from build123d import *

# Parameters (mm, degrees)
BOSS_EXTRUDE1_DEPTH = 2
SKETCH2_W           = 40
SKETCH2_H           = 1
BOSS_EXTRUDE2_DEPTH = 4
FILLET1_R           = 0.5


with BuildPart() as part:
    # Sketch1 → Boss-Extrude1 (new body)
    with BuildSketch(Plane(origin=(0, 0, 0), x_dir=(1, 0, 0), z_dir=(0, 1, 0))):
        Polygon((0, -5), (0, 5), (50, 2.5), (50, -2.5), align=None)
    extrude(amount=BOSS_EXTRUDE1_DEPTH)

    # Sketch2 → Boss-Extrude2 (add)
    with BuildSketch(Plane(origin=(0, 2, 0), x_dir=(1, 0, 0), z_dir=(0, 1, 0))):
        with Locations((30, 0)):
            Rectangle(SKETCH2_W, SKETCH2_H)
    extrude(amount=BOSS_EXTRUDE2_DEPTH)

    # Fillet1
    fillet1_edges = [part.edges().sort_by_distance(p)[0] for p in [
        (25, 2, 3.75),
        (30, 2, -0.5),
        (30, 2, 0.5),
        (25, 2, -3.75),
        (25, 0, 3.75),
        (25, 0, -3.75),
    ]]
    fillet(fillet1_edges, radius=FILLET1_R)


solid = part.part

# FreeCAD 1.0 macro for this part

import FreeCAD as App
import Part
import Sketcher
from FreeCAD import Vector


def edges_at(feature, points):
    """Names of the edges that pass closest to the given points."""
    edges = feature.Shape.Edges
    near = lambda p: min(range(len(edges)), key=lambda i: edges[i].distToShape(Part.Vertex(*p))[0])
    return sorted({f"Edge{near(p) + 1}" for p in points})

doc = App.newDocument("Part")
body = doc.addObject("PartDesign::Body", "Body")

# Sketch on XZ plane
sketch1 = doc.addObject("Sketcher::SketchObject", "Sketch")
body.addObject(sketch1)
sketch1.AttachmentSupport = (doc.XZ_Plane, [""])
sketch1.MapMode = "FlatFace"
sketch1.addGeometry([
    Part.LineSegment(Vector(0, -5, 0), Vector(0, 5, 0)),
    Part.LineSegment(Vector(0, 5, 0), Vector(50, 2, 0)),
    Part.LineSegment(Vector(50, 2, 0), Vector(50, -2, 0)),
    Part.LineSegment(Vector(50, -2, 0), Vector(0, -5, 0)),
], False)
sketch1.addConstraint([
    Sketcher.Constraint("Coincident", 0, 2, 1, 1),
    Sketcher.Constraint("Coincident", 1, 2, 2, 1),
    Sketcher.Constraint("Coincident", 2, 2, 3, 1),
    Sketcher.Constraint("Coincident", 3, 2, 0, 1),
    Sketcher.Constraint("Vertical", 0),
    Sketcher.Constraint("Vertical", 2),
    Sketcher.Constraint("Symmetric", 0, 2, 3, 2, -1, 1),
    Sketcher.Constraint("Equal", 1, 3),
    Sketcher.Constraint("DistanceY", 0, 1, 0, 2, 10.0),
    Sketcher.Constraint("DistanceY", 2, 2, 2, 1, 5.0),
    Sketcher.Constraint("DistanceX", -1, 1, 1, 2, 50.0),
])
pad1 = doc.addObject("PartDesign::Pad", "Pad")
body.addObject(pad1)
pad1.Profile = sketch1
pad1.Length = 2
pad1.Reversed = True

# Sketch on XZ plane
sketch2 = doc.addObject("Sketcher::SketchObject", "Sketch001")
body.addObject(sketch2)
sketch2.AttachmentSupport = (doc.XZ_Plane, [""])
sketch2.MapMode = "FlatFace"
sketch2.AttachmentOffset = App.Placement(Vector(0, 0, -2), App.Rotation())
sketch2.addGeometry([
    Part.LineSegment(Vector(10, -0.5, 0), Vector(10, 0.5, 0)),
    Part.LineSegment(Vector(10, 0.5, 0), Vector(50, 0.5, 0)),
    Part.LineSegment(Vector(50, 0.5, 0), Vector(50, -0.5, 0)),
    Part.LineSegment(Vector(50, -0.5, 0), Vector(10, -0.5, 0)),
], False)
sketch2.addConstraint([
    Sketcher.Constraint("Coincident", 0, 2, 1, 1),
    Sketcher.Constraint("Coincident", 1, 2, 2, 1),
    Sketcher.Constraint("Coincident", 2, 2, 3, 1),
    Sketcher.Constraint("Coincident", 3, 2, 0, 1),
    Sketcher.Constraint("Vertical", 0),
    Sketcher.Constraint("Horizontal", 1),
    Sketcher.Constraint("Vertical", 2),
    Sketcher.Constraint("Horizontal", 3),
    Sketcher.Constraint("DistanceX", 1, 1, 1, 2, 40.0),
    Sketcher.Constraint("DistanceY", 0, 1, 0, 2, 1.0),
    Sketcher.Constraint("DistanceX", -1, 1, 0, 2, 10.0),
    Sketcher.Constraint("DistanceY", -1, 1, 0, 2, 0.5),
])
pad2 = doc.addObject("PartDesign::Pad", "Pad001")
body.addObject(pad2)
pad2.Profile = sketch2
pad2.Length = 4
pad2.Reversed = True
doc.recompute()

fillet = doc.addObject("PartDesign::Fillet", "Fillet")
body.addObject(fillet)
fillet.Base = (pad2, edges_at(pad2, [
    (25, 2, 3.75),
    (30, 2, -0.5),
    (30, 2, 0.5),
    (25, 2, -3.75),
    (25, 0, 3.75),
    (25, 0, -3.75),
]))
fillet.Radius = 0.5

doc.recompute()
